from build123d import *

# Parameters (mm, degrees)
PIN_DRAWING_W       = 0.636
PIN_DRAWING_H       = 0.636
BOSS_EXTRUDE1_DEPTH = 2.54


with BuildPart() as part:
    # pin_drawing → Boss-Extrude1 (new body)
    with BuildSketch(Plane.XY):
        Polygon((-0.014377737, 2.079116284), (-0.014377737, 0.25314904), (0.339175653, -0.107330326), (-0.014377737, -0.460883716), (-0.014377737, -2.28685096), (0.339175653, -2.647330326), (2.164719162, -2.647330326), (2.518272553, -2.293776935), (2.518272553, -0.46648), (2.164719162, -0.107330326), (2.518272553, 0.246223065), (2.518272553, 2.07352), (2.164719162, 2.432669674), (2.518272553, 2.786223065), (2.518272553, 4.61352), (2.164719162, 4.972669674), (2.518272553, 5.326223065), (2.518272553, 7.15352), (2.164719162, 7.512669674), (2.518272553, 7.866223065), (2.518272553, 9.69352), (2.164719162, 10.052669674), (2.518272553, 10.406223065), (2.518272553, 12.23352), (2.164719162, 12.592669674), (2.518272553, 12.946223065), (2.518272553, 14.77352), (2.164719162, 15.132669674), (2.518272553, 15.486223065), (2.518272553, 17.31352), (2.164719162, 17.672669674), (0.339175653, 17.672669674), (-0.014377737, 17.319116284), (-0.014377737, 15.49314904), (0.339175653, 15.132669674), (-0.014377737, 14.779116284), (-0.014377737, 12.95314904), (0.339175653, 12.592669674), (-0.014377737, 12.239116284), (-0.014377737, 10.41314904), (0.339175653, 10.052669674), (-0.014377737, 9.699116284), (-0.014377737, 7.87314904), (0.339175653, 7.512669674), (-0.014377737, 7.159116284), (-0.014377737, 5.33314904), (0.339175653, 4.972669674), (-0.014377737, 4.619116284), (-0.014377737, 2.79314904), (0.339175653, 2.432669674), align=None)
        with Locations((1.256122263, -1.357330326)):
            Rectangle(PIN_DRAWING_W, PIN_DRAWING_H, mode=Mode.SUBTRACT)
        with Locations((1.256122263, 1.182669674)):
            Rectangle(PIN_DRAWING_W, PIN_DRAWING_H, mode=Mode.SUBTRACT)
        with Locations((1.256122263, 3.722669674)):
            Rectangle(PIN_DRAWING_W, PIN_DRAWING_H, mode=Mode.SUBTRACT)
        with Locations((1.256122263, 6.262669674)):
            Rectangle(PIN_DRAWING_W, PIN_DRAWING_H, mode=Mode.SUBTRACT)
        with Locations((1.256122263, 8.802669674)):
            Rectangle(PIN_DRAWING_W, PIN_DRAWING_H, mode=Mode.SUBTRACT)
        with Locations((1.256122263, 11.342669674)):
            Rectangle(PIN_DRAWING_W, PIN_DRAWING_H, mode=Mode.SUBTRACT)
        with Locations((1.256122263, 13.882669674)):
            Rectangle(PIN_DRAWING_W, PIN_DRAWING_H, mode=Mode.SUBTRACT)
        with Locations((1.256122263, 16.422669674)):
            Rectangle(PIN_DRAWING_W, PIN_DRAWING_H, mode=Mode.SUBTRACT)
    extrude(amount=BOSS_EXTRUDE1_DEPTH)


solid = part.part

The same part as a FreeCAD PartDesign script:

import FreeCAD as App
import Part
import Sketcher
from FreeCAD import Vector
Q = App.Units.Quantity


def add_polygon(sketch, points):
    """Adds a closed chain of lines whose ends are joined by coincident constraints."""
    first, n = sketch.GeometryCount, len(points)
    for a, b in zip(points, points[1:] + points[:1]):
        sketch.addGeometry(Part.LineSegment(App.Vector(*a, 0), App.Vector(*b, 0)), False)
    for i in range(n):
        sketch.addConstraint(Sketcher.Constraint("Coincident", first + i, 2, first + (i + 1) % n, 1))

doc = App.newDocument("Part")
body = doc.addObject("PartDesign::Body", "Body")

# Sketch on XY plane
sketch1 = doc.addObject("Sketcher::SketchObject", "Sketch")
body.addObject(sketch1)
sketch1.AttachmentSupport = (doc.XY_Plane, [""])
sketch1.MapMode = "FlatFace"
add_polygon(sketch1, [(-0.014378, 2.079116), (-0.014378, 0.253149), (0.339176, -0.10733), (-0.014378, -0.460884), (-0.014378, -2.286851), (0.339176, -2.64733), (2.164719, -2.64733), (2.518273, -2.293777), (2.518273, -0.46648), (2.164719, -0.10733), (2.518273, 0.246223), (2.518273, 2.07352), (2.164719, 2.43267), (2.518273, 2.786223), (2.518273, 4.61352), (2.164719, 4.97267), (2.518273, 5.326223), (2.518273, 7.15352), (2.164719, 7.51267), (2.518273, 7.866223), (2.518273, 9.69352), (2.164719, 10.05267), (2.518273, 10.406223), (2.518273, 12.23352), (2.164719, 12.59267), (2.518273, 12.946223), (2.518273, 14.77352), (2.164719, 15.13267), (2.518273, 15.486223), (2.518273, 17.31352), (2.164719, 17.67267), (0.339176, 17.67267), (-0.014378, 17.319116), (-0.014378, 15.493149), (0.339176, 15.13267), (-0.014378, 14.779116), (-0.014378, 12.953149), (0.339176, 12.59267), (-0.014378, 12.239116), (-0.014378, 10.413149), (0.339176, 10.05267), (-0.014378, 9.699116), (-0.014378, 7.873149), (0.339176, 7.51267), (-0.014378, 7.159116), (-0.014378, 5.333149), (0.339176, 4.97267), (-0.014378, 4.619116), (-0.014378, 2.793149), (0.339176, 2.43267)])  # lines 0-49
add_polygon(sketch1, [(1.574122, -1.67533), (0.938122, -1.67533), (0.938122, -1.03933), (1.574122, -1.03933)])  # lines 50-53
add_polygon(sketch1, [(1.574122, 0.86467), (0.938122, 0.86467), (0.938122, 1.50067), (1.574122, 1.50067)])  # lines 54-57
add_polygon(sketch1, [(1.574122, 3.40467), (0.938122, 3.40467), (0.938122, 4.04067), (1.574122, 4.04067)])  # lines 58-61
add_polygon(sketch1, [(1.574122, 5.94467), (0.938122, 5.94467), (0.938122, 6.58067), (1.574122, 6.58067)])  # lines 62-65
add_polygon(sketch1, [(1.574122, 8.48467), (0.938122, 8.48467), (0.938122, 9.12067), (1.574122, 9.12067)])  # lines 66-69
add_polygon(sketch1, [(1.574122, 11.02467), (0.938122, 11.02467), (0.938122, 11.66067), (1.574122, 11.66067)])  # lines 70-73
add_polygon(sketch1, [(1.574122, 13.56467), (0.938122, 13.56467), (0.938122, 14.20067), (1.574122, 14.20067)])  # lines 74-77
add_polygon(sketch1, [(1.574122, 16.10467), (0.938122, 16.10467), (0.938122, 16.74067), (1.574122, 16.74067)])  # lines 78-81
sketch1.addConstraint([
    Sketcher.Constraint("Vertical", 0),
    Sketcher.Constraint("Vertical", 3),
    Sketcher.Constraint("Horizontal", 5),
    Sketcher.Constraint("Vertical", 7),
    Sketcher.Constraint("Vertical", 10),
    Sketcher.Constraint("Vertical", 13),
    Sketcher.Constraint("Vertical", 16),
    Sketcher.Constraint("Vertical", 19),
    Sketcher.Constraint("Vertical", 22),
    Sketcher.Constraint("Vertical", 25),
    Sketcher.Constraint("Vertical", 28),
    Sketcher.Constraint("Horizontal", 30),
    Sketcher.Constraint("Vertical", 32),
    Sketcher.Constraint("Vertical", 35),
    Sketcher.Constraint("Vertical", 38),
    Sketcher.Constraint("Vertical", 41),
    Sketcher.Constraint("Vertical", 44),
    Sketcher.Constraint("Vertical", 47),
    Sketcher.Constraint("Horizontal", 50),
    Sketcher.Constraint("Vertical", 51),
    Sketcher.Constraint("Horizontal", 52),
    Sketcher.Constraint("Vertical", 53),
    Sketcher.Constraint("Horizontal", 54),
    Sketcher.Constraint("Vertical", 55),
    Sketcher.Constraint("Horizontal", 56),
    Sketcher.Constraint("Vertical", 57),
    Sketcher.Constraint("Horizontal", 58),
    Sketcher.Constraint("Vertical", 59),
    Sketcher.Constraint("Horizontal", 60),
    Sketcher.Constraint("Vertical", 61),
    Sketcher.Constraint("Horizontal", 62),
    Sketcher.Constraint("Vertical", 63),
    Sketcher.Constraint("Horizontal", 64),
    Sketcher.Constraint("Vertical", 65),
    Sketcher.Constraint("Horizontal", 66),
    Sketcher.Constraint("Vertical", 67),
    Sketcher.Constraint("Horizontal", 68),
    Sketcher.Constraint("Vertical", 69),
    Sketcher.Constraint("Horizontal", 70),
    Sketcher.Constraint("Vertical", 71),
    Sketcher.Constraint("Horizontal", 72),
    Sketcher.Constraint("Vertical", 73),
    Sketcher.Constraint("Horizontal", 74),
    Sketcher.Constraint("Vertical", 75),
    Sketcher.Constraint("Horizontal", 76),
    Sketcher.Constraint("Vertical", 77),
    Sketcher.Constraint("Horizontal", 78),
    Sketcher.Constraint("Vertical", 79),
    Sketcher.Constraint("Horizontal", 80),
    Sketcher.Constraint("Vertical", 81),
    Sketcher.Constraint("Parallel", 1, 4),
    Sketcher.Constraint("Parallel", 2, 6),
    Sketcher.Constraint("Parallel", 6, 9),
    Sketcher.Constraint("Parallel", 8, 11),
    Sketcher.Constraint("Parallel", 9, 12),
    Sketcher.Constraint("Parallel", 11, 14),
    Sketcher.Constraint("Parallel", 12, 15),
    Sketcher.Constraint("Parallel", 14, 17),
    Sketcher.Constraint("Parallel", 15, 18),
    Sketcher.Constraint("Parallel", 17, 20),
    Sketcher.Constraint("Parallel", 18, 21),
    Sketcher.Constraint("Parallel", 20, 23),
    Sketcher.Constraint("Parallel", 21, 24),
    Sketcher.Constraint("Parallel", 23, 26),
    Sketcher.Constraint("Parallel", 24, 27),
    Sketcher.Constraint("Parallel", 26, 29),
    Sketcher.Constraint("Parallel", 27, 31),
    Sketcher.Constraint("Parallel", 4, 33),
    Sketcher.Constraint("Parallel", 31, 34),
    Sketcher.Constraint("Parallel", 33, 36),
    Sketcher.Constraint("Parallel", 34, 37),
    Sketcher.Constraint("Parallel", 36, 39),
    Sketcher.Constraint("Parallel", 37, 40),
    Sketcher.Constraint("Parallel", 39, 42),
    Sketcher.Constraint("Parallel", 40, 43),
    Sketcher.Constraint("Parallel", 42, 45),
    Sketcher.Constraint("Parallel", 43, 46),
    Sketcher.Constraint("Parallel", 45, 48),
    Sketcher.Constraint("Parallel", 46, 49),
    Sketcher.Constraint("Horizontal", 1, 2, 8, 2),
    Sketcher.Constraint("Horizontal", 26, 2, 33, 2),
    Sketcher.Constraint("Horizontal", 23, 2, 36, 2),
    Sketcher.Constraint("Horizontal", 20, 2, 39, 2),
    Sketcher.Constraint("Horizontal", 17, 2, 42, 2),
    Sketcher.Constraint("Horizontal", 14, 2, 45, 2),
    Sketcher.Constraint("Horizontal", 11, 2, 48, 2),
    Sketcher.Constraint("Vertical", 0, 2, 2, 2),
    Sketcher.Constraint("Vertical", 1, 2, 4, 2),
    Sketcher.Constraint("Vertical", 5, 2, 8, 2),
    Sketcher.Constraint("Vertical", 7, 2, 9, 2),
    Sketcher.Constraint("Vertical", 8, 2, 11, 2),
    Sketcher.Constraint("Vertical", 10, 2, 12, 2),
    Sketcher.Constraint("Vertical", 11, 2, 14, 2),
    Sketcher.Constraint("Vertical", 13, 2, 15, 2),
    Sketcher.Constraint("Vertical", 14, 2, 17, 2),
    Sketcher.Constraint("Vertical", 16, 2, 18, 2),
    Sketcher.Constraint("Vertical", 17, 2, 20, 2),
    Sketcher.Constraint("Vertical", 19, 2, 21, 2),
    Sketcher.Constraint("Vertical", 20, 2, 23, 2),
    Sketcher.Constraint("Vertical", 22, 2, 24, 2),
    Sketcher.Constraint("Vertical", 23, 2, 26, 2),
    Sketcher.Constraint("Vertical", 25, 2, 27, 2),
    Sketcher.Constraint("Vertical", 26, 2, 29, 2),
    Sketcher.Constraint("Vertical", 4, 2, 30, 2),
    Sketcher.Constraint("Vertical", 3, 2, 31, 2),
    Sketcher.Constraint("Vertical", 30, 2, 33, 2),
    Sketcher.Constraint("Vertical", 32, 2, 34, 2),
    Sketcher.Constraint("Vertical", 33, 2, 36, 2),
    Sketcher.Constraint("Vertical", 35, 2, 37, 2),
    Sketcher.Constraint("Vertical", 36, 2, 39, 2),
    Sketcher.Constraint("Vertical", 38, 2, 40, 2),
    Sketcher.Constraint("Vertical", 39, 2, 42, 2),
    Sketcher.Constraint("Vertical", 41, 2, 43, 2),
    Sketcher.Constraint("Vertical", 42, 2, 45, 2),
    Sketcher.Constraint("Vertical", 44, 2, 46, 2),
    Sketcher.Constraint("Vertical", 45, 2, 48, 2),
    Sketcher.Constraint("Vertical", 51, 2, 54, 2),
    Sketcher.Constraint("Vertical", 53, 2, 56, 2),
    Sketcher.Constraint("Vertical", 55, 2, 58, 2),
    Sketcher.Constraint("Vertical", 57, 2, 60, 2),
    Sketcher.Constraint("Vertical", 59, 2, 62, 2),
    Sketcher.Constraint("Vertical", 61, 2, 64, 2),
    Sketcher.Constraint("Vertical", 63, 2, 66, 2),
    Sketcher.Constraint("Vertical", 65, 2, 68, 2),
    Sketcher.Constraint("Vertical", 67, 2, 70, 2),
    Sketcher.Constraint("Vertical", 69, 2, 72, 2),
    Sketcher.Constraint("Vertical", 71, 2, 74, 2),
    Sketcher.Constraint("Vertical", 73, 2, 76, 2),
    Sketcher.Constraint("Vertical", 75, 2, 78, 2),
    Sketcher.Constraint("Vertical", 77, 2, 80, 2),
    Sketcher.Constraint("Equal", 0, 3),
    Sketcher.Constraint("Equal", 10, 13),
    Sketcher.Constraint("Equal", 13, 16),
    Sketcher.Constraint("Equal", 16, 19),
    Sketcher.Constraint("Equal", 19, 22),
    Sketcher.Constraint("Equal", 22, 25),
    Sketcher.Constraint("Equal", 25, 28),
    Sketcher.Constraint("Equal", 80, 51),
    Sketcher.Constraint("Equal", 53, 55),
    Sketcher.Constraint("Equal", 57, 59),
    Sketcher.Constraint("Equal", 61, 63),
    Sketcher.Constraint("Equal", 65, 67),
    Sketcher.Constraint("Equal", 69, 71),
    Sketcher.Constraint("Equal", 73, 75),
    Sketcher.Constraint("Equal", 77, 79),
    Sketcher.Constraint("Equal", 2, 6),
    Sketcher.Constraint("Angle", 2, Q("-135 deg")),
    Sketcher.Constraint("Distance", 2, Q("0.5 mm")),
    Sketcher.Constraint("DistanceX", 50, 2, 50, 1, Q("0.636 mm")),
    Sketcher.Constraint("Distance", 1, Q("0.504921 mm")),
    Sketcher.Constraint("DistanceX", 5, 1, 5, 2, Q("1.825544 mm")),
    Sketcher.Constraint("DistanceY", 0, 2, 0, 1, Q("1.825967 mm")),
    Sketcher.Constraint("DistanceY", 7, 1, 7, 2, Q("1.827297 mm")),
    Sketcher.Constraint("DistanceY", -1, 1, 0, 2, Q("0.253149 mm")),
    Sketcher.Constraint("DistanceX", -1, 1, 5, 2, Q("2.164719 mm")),
    Sketcher.Constraint("DistanceY", 50, 2, -1, 1, Q("1.67533 mm")),
    Sketcher.Constraint("DistanceY", -1, 1, 54, 2, Q("0.86467 mm")),
    Sketcher.Constraint("DistanceY", -1, 1, 58, 2, Q("3.40467 mm")),
    Sketcher.Constraint("DistanceY", -1, 1, 62, 2, Q("5.94467 mm")),
    Sketcher.Constraint("DistanceY", -1, 1, 66, 2, Q("8.48467 mm")),
    Sketcher.Constraint("DistanceY", -1, 1, 70, 2, Q("11.02467 mm")),
    Sketcher.Constraint("DistanceY", -1, 1, 74, 2, Q("13.56467 mm")),
    Sketcher.Constraint("DistanceY", -1, 1, 78, 2, Q("16.10467 mm")),
    Sketcher.Constraint("DistanceX", -1, 1, 50, 2, Q("0.938122 mm")),
])
pad1 = doc.addObject("PartDesign::Pad", "Pad")
body.addObject(pad1)
pad1.Profile = sketch1
pad1.Length = 2.54

doc.recompute()
